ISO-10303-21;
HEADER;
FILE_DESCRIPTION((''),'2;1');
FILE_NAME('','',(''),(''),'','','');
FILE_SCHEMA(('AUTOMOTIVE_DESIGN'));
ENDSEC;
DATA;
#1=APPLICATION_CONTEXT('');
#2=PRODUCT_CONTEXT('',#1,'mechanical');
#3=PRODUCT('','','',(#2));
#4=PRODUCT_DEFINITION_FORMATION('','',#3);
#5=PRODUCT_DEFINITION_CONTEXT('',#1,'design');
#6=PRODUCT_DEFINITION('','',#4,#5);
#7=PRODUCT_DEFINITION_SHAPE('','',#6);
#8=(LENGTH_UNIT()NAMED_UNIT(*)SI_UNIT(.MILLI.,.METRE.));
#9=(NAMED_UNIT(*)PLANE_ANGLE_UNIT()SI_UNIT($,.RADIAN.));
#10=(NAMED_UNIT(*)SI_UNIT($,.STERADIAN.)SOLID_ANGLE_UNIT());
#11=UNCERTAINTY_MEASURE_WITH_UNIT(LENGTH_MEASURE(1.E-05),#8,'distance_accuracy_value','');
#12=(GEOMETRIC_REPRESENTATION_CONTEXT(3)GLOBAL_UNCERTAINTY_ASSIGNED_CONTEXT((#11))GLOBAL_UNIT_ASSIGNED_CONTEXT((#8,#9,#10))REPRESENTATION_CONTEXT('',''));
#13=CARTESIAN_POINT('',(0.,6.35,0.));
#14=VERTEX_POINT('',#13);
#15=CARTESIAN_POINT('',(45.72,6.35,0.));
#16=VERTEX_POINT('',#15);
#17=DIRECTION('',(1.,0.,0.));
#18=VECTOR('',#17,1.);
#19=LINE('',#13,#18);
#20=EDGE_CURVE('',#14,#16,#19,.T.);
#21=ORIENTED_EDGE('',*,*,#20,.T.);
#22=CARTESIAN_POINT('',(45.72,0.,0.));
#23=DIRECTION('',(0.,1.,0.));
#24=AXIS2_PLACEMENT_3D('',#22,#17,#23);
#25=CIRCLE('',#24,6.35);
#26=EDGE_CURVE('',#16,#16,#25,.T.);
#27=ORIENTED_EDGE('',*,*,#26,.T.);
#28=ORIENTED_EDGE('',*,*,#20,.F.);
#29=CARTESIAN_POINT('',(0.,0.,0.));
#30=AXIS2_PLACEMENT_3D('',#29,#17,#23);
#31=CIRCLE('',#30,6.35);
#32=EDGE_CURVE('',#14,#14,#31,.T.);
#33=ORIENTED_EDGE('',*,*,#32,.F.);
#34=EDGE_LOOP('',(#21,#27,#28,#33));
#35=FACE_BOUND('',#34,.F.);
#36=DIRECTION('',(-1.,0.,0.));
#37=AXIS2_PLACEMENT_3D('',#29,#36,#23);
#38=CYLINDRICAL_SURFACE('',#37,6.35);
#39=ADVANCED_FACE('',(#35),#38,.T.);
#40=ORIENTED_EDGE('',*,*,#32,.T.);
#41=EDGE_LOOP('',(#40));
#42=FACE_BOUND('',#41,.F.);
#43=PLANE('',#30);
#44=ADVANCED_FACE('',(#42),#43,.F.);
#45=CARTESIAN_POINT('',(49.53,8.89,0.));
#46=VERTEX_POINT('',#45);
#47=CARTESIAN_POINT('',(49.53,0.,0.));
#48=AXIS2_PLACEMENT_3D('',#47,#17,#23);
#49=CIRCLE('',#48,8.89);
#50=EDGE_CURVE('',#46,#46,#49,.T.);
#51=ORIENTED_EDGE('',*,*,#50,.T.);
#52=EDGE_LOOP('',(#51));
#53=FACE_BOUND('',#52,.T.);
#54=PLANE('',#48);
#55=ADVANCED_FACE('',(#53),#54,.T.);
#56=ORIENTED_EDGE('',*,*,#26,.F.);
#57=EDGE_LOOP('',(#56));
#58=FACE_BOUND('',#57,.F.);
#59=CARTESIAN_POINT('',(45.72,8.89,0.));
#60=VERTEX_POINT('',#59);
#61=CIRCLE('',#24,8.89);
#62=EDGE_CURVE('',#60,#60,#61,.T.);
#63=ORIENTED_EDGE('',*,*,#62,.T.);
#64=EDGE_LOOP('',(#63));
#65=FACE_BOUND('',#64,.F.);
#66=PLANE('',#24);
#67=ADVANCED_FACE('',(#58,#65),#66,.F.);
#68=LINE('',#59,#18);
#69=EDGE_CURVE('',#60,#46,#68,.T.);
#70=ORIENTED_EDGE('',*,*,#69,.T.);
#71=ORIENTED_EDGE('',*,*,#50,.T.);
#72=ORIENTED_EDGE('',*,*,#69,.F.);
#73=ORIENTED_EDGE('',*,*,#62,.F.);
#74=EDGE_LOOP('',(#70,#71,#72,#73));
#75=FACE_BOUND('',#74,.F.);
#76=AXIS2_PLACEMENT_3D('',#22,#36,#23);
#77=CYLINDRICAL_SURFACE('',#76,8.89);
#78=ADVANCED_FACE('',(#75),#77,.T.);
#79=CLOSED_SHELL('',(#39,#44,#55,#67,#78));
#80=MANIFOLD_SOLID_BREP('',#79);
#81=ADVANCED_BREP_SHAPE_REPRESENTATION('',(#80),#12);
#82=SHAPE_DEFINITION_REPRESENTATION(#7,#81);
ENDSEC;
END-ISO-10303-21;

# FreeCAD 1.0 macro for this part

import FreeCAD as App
import Part
import Sketcher
from FreeCAD import Vector
Q = App.Units.Quantity

doc = App.newDocument("Part")
body = doc.addObject("PartDesign::Body", "Body")

# Sketch on YZ plane
sketch1 = body.newObject("Sketcher::SketchObject", "Sketch")
sketch1.AttachmentSupport = (doc.getObject("YZ_Plane"), [""])
sketch1.MapMode = "FlatFace"
sketch1.addGeometry(Part.Circle(Vector(0, 0, 0), Vector(0, 0, 1), 6), False)
sketch1.addConstraint(Sketcher.Constraint("Coincident", 0, 3, -1, 1))
sketch1.addConstraint(Sketcher.Constraint("Diameter", 0, Q("0.5 in")))
pad1 = body.newObject("PartDesign::Pad", "Pad")
pad1.Profile = sketch1
pad1.Length = Q("1.8 in")

# Sketch on YZ plane
sketch2 = body.newObject("Sketcher::SketchObject", "Sketch001")
sketch2.AttachmentSupport = (doc.getObject("YZ_Plane"), [""])
sketch2.MapMode = "FlatFace"
sketch2.AttachmentOffset = App.Placement(Vector(0, 0, 1.8 * 25.4), App.Rotation())
sketch2.addGeometry(Part.Circle(Vector(0, 0, 0), Vector(0, 0, 1), 9), False)
sketch2.addConstraint(Sketcher.Constraint("Coincident", 0, 3, -1, 1))
sketch2.addConstraint(Sketcher.Constraint("Diameter", 0, Q("0.7 in")))
pad2 = body.newObject("PartDesign::Pad", "Pad001")
pad2.Profile = sketch2
pad2.Length = Q("0.15 in")

doc.recompute()
